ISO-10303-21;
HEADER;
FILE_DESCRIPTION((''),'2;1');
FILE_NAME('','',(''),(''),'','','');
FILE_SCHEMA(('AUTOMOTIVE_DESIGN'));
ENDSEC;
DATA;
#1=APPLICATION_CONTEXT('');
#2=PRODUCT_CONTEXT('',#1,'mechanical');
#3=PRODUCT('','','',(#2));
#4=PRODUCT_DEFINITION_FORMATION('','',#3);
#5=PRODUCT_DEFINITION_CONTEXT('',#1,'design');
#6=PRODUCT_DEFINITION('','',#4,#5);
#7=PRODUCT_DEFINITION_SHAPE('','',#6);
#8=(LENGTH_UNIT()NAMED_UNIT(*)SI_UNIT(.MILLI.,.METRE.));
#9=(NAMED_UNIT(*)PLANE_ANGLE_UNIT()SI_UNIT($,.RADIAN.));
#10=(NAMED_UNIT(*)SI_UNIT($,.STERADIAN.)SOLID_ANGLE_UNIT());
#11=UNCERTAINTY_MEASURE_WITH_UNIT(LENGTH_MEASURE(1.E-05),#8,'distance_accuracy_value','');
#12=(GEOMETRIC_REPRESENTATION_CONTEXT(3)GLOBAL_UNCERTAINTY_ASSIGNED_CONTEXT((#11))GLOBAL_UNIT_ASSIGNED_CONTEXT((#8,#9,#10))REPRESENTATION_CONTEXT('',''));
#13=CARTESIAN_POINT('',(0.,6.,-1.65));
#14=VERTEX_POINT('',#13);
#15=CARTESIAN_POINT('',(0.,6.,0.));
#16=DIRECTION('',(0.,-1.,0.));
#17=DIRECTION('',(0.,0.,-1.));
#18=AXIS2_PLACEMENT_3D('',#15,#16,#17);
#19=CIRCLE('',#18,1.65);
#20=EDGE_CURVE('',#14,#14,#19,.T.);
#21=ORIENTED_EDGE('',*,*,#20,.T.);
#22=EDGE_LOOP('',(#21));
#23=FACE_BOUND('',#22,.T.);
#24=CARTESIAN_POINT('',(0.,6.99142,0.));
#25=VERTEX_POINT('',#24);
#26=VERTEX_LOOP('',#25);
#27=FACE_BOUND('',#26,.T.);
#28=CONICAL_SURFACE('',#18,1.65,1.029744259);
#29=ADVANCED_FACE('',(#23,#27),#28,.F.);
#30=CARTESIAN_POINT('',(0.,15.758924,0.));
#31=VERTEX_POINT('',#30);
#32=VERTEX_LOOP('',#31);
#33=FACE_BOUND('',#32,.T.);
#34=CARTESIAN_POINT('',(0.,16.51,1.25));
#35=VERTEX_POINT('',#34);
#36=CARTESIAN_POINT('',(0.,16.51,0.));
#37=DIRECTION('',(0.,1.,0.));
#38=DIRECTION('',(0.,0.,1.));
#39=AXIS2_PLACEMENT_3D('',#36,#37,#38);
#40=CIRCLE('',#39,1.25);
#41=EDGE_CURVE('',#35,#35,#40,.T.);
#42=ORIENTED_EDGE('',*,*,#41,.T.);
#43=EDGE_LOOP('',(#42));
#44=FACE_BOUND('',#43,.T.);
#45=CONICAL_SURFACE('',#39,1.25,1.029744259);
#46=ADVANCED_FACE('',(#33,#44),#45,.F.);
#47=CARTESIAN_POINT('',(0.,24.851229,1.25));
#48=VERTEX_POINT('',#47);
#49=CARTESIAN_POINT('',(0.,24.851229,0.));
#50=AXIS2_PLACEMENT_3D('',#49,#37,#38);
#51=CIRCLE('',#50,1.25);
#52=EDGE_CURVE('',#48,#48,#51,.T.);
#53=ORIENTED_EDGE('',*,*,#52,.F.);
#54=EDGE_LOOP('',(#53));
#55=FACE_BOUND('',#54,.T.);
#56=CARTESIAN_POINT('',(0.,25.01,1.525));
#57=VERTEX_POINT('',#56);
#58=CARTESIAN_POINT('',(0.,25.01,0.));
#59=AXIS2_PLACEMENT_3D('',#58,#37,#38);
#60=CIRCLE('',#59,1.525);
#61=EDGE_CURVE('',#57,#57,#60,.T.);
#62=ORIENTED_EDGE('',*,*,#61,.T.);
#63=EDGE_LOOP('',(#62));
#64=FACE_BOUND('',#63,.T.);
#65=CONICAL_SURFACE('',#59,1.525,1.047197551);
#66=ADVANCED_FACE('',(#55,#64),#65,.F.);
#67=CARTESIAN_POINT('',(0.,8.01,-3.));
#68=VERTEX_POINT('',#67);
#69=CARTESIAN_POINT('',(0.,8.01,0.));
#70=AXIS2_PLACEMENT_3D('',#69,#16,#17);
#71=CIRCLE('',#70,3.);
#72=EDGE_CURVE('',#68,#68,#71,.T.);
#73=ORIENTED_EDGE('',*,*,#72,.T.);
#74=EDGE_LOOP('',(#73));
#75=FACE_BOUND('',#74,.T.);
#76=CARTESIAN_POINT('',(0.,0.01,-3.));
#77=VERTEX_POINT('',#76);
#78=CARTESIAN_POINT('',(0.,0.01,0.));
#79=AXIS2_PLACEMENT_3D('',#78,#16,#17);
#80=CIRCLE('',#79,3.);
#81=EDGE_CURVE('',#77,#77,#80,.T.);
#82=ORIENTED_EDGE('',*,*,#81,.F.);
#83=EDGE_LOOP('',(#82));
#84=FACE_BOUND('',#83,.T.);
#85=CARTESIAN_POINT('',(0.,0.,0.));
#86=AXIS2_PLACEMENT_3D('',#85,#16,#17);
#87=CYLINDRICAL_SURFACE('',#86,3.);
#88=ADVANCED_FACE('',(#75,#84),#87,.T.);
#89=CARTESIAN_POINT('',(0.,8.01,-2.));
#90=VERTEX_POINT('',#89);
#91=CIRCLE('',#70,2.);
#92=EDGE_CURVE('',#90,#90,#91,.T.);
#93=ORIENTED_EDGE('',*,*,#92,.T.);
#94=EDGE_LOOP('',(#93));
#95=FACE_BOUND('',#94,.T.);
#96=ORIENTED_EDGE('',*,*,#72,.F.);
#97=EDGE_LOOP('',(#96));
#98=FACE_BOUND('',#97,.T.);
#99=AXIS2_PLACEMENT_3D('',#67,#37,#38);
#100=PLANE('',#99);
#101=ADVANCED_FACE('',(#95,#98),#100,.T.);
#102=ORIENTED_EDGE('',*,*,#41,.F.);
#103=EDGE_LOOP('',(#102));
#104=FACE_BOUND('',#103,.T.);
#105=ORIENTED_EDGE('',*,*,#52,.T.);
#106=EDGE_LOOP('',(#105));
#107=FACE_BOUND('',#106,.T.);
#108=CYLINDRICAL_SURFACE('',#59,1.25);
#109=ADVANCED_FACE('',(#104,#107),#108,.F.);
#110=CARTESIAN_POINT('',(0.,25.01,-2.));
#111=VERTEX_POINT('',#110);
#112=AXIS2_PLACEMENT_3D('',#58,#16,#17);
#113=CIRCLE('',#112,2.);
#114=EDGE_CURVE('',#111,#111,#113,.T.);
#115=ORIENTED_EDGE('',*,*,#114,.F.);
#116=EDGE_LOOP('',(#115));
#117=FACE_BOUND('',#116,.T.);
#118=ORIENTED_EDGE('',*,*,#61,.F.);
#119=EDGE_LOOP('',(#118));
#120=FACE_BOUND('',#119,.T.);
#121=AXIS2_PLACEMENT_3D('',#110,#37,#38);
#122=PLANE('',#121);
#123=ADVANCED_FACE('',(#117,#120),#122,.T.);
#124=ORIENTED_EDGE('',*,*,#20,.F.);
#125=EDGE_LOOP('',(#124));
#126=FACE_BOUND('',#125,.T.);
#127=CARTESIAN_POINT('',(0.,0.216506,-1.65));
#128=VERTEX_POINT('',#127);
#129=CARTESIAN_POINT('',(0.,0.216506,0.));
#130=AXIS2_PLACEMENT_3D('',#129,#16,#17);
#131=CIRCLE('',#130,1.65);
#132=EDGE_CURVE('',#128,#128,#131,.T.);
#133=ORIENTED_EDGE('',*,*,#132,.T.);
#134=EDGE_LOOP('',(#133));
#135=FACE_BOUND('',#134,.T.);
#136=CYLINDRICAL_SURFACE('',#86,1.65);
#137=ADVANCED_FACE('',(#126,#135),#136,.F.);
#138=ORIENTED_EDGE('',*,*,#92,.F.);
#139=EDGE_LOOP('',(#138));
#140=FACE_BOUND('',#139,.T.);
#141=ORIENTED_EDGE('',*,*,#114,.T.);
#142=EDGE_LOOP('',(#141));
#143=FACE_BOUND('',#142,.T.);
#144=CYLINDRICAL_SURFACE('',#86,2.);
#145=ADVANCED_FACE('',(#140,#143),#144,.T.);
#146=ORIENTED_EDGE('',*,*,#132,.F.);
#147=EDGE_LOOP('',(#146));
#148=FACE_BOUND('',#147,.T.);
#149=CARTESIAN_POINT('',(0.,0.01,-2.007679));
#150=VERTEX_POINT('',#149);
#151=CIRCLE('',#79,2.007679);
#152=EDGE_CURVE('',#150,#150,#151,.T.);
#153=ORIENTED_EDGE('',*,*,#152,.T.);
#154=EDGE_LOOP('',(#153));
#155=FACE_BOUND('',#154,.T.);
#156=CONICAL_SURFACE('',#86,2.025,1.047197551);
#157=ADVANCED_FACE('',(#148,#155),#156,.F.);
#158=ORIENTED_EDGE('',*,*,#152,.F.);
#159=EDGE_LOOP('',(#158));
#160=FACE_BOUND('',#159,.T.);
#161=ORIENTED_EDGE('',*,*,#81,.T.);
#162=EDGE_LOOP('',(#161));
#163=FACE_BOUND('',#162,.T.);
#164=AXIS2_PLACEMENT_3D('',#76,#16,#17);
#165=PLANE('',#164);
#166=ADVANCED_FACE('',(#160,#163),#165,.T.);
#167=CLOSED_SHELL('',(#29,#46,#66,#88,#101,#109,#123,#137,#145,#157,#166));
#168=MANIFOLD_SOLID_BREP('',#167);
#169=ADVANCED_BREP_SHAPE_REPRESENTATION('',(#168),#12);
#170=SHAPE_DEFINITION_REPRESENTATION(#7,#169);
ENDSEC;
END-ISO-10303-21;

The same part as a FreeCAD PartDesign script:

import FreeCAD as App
import Part
import Sketcher
Q = App.Units.Quantity

doc = App.newDocument("Part")
params = doc.addObject("Spreadsheet::Sheet", "Params")
for row, (alias, value) in enumerate([
    ("sketch1_width", "8 mm"),
    ("sketch1_width2", "17 mm"),
    ("sketch1_height", "2 mm"),
    ("sketch1_height2", "1 mm"),
    ("sketch1_width3", "0.01 mm"),
    ("revolution_angle", "360 deg"),
    ("sketch2_diameter", "2.5 mm"),
    ("hole_diameter", "2.5 mm"),
    ("hole_depth", "8.5 mm"),
    ("hole_csink_diameter", "3.05 mm"),
    ("sketch3_diameter", "3.3 mm"),
    ("hole2_diameter", "3.3 mm"),
    ("hole2_depth", "6 mm"),
    ("hole2_csink_diameter", "4.05 mm"),
], start=1):
    params.set(f"A{row}", alias)
    params.set(f"B{row}", "=" + value)
    params.setAlias(f"B{row}", alias)

body = doc.addObject("PartDesign::Body", "Body")

# Sketch on YZ plane
sketch1 = body.newObject("Sketcher::SketchObject", "Sketch")
sketch1.AttachmentSupport = (doc.getObject("YZ_Plane"), [""])
sketch1.MapMode = "FlatFace"
sketch1.addGeometry([
    Part.LineSegment(App.Vector(0, 0, 0), App.Vector(0, -2, 0)),  # 0
    Part.LineSegment(App.Vector(0, -2, 0), App.Vector(0.01, -2, 0)),  # 1
    Part.LineSegment(App.Vector(0.01, -2, 0), App.Vector(0.01, -3, 0)),  # 2
    Part.LineSegment(App.Vector(0.01, -3, 0), App.Vector(8.01, -3, 0)),  # 3
    Part.LineSegment(App.Vector(8.01, -3, 0), App.Vector(8.01, -2, 0)),  # 4
    Part.LineSegment(App.Vector(8.01, -2, 0), App.Vector(25.01, -2, 0)),  # 5
    Part.LineSegment(App.Vector(25.01, -2, 0), App.Vector(25.01, 0, 0)),  # 6
    Part.LineSegment(App.Vector(25.01, 0, 0), App.Vector(0, 0, 0)),  # 7
], False)
sketch1.addConstraint([
    Sketcher.Constraint("Coincident", 0, 2, 1, 1),
    Sketcher.Constraint("Coincident", 1, 2, 2, 1),
    Sketcher.Constraint("Coincident", 2, 2, 3, 1),
    Sketcher.Constraint("Coincident", 3, 2, 4, 1),
    Sketcher.Constraint("Coincident", 4, 2, 5, 1),
    Sketcher.Constraint("Coincident", 5, 2, 6, 1),
    Sketcher.Constraint("Coincident", 6, 2, 7, 1),
    Sketcher.Constraint("Coincident", 7, 2, 0, 1),
    Sketcher.Constraint("Vertical", 0),
    Sketcher.Constraint("Horizontal", 1),
    Sketcher.Constraint("Vertical", 2),
    Sketcher.Constraint("Horizontal", 3),
    Sketcher.Constraint("Vertical", 4),
    Sketcher.Constraint("Horizontal", 5),
    Sketcher.Constraint("Vertical", 6),
    Sketcher.Constraint("Horizontal", 7),
    Sketcher.Constraint("Coincident", 7, 2, -1, 1),
    Sketcher.Constraint("Horizontal", 1, 2, 4, 2),
    Sketcher.Constraint("DistanceX", 3, 1, 3, 2, Q("8 mm")),
    Sketcher.Constraint("DistanceX", 5, 1, 5, 2, Q("17 mm")),
    Sketcher.Constraint("DistanceY", 0, 2, 0, 1, Q("2 mm")),
    Sketcher.Constraint("DistanceY", 2, 2, 2, 1, Q("1 mm")),
    Sketcher.Constraint("DistanceX", 1, 1, 1, 2, Q("0.01 mm")),
])
sketch1.setExpression("Constraints[18]", "Params.sketch1_width")
sketch1.setExpression("Constraints[19]", "Params.sketch1_width2")
sketch1.setExpression("Constraints[20]", "Params.sketch1_height")
sketch1.setExpression("Constraints[21]", "Params.sketch1_height2")
sketch1.setExpression("Constraints[22]", "Params.sketch1_width3")
revolution = body.newObject("PartDesign::Revolution", "Revolution")
revolution.Profile = sketch1
revolution.ReferenceAxis = (sketch1, ["H_Axis"])
revolution.setExpression("Angle", "Params.revolution_angle")

# Sketch on XZ plane
sketch2 = body.newObject("Sketcher::SketchObject", "Sketch001")
sketch2.AttachmentSupport = (doc.getObject("XZ_Plane"), [""])
sketch2.MapMode = "FlatFace"
sketch2.AttachmentOffset = App.Placement(App.Vector(0, 0, -25.01), App.Rotation())
sketch2.addGeometry(Part.Circle(App.Vector(0, 0, 0), App.Vector(0, 0, 1), 1.2), False)
sketch2.addConstraint([
    Sketcher.Constraint("Coincident", 0, 3, -1, 1),
    Sketcher.Constraint("Diameter", 0, Q("2.5 mm")),
])
sketch2.setExpression("Constraints[1]", "Params.sketch2_diameter")
doc.recompute()
hole = body.newObject("PartDesign::Hole", "Hole")
hole.Profile = sketch2
hole.ThreadType = "None"
hole.setExpression("Diameter", "Params.hole_diameter")
hole.DepthType = "Dimension"
hole.setExpression("Depth", "Params.hole_depth")
hole.DrillPoint = "Angled"
hole.DrillPointAngle = 118
hole.HoleCutType = "Countersink"
hole.setExpression("HoleCutDiameter", "Params.hole_csink_diameter")
hole.HoleCutCountersinkAngle = 120
hole.Reversed = True

# Sketch on XZ plane
sketch3 = body.newObject("Sketcher::SketchObject", "Sketch002")
sketch3.AttachmentSupport = (doc.getObject("XZ_Plane"), [""])
sketch3.MapMode = "FlatFace"
sketch3.addGeometry(Part.Circle(App.Vector(0, 0, 0), App.Vector(0, 0, 1), 1.6), False)
sketch3.addConstraint([
    Sketcher.Constraint("Coincident", 0, 3, -1, 1),
    Sketcher.Constraint("Diameter", 0, Q("3.3 mm")),
])
sketch3.setExpression("Constraints[1]", "Params.sketch3_diameter")
doc.recompute()
hole2 = body.newObject("PartDesign::Hole", "Hole001")
hole2.Profile = sketch3
hole2.ThreadType = "None"
hole2.setExpression("Diameter", "Params.hole2_diameter")
hole2.DepthType = "Dimension"
hole2.setExpression("Depth", "Params.hole2_depth")
hole2.DrillPoint = "Angled"
hole2.DrillPointAngle = 118
hole2.HoleCutType = "Countersink"
hole2.setExpression("HoleCutDiameter", "Params.hole2_csink_diameter")
hole2.HoleCutCountersinkAngle = 120

doc.recompute()
